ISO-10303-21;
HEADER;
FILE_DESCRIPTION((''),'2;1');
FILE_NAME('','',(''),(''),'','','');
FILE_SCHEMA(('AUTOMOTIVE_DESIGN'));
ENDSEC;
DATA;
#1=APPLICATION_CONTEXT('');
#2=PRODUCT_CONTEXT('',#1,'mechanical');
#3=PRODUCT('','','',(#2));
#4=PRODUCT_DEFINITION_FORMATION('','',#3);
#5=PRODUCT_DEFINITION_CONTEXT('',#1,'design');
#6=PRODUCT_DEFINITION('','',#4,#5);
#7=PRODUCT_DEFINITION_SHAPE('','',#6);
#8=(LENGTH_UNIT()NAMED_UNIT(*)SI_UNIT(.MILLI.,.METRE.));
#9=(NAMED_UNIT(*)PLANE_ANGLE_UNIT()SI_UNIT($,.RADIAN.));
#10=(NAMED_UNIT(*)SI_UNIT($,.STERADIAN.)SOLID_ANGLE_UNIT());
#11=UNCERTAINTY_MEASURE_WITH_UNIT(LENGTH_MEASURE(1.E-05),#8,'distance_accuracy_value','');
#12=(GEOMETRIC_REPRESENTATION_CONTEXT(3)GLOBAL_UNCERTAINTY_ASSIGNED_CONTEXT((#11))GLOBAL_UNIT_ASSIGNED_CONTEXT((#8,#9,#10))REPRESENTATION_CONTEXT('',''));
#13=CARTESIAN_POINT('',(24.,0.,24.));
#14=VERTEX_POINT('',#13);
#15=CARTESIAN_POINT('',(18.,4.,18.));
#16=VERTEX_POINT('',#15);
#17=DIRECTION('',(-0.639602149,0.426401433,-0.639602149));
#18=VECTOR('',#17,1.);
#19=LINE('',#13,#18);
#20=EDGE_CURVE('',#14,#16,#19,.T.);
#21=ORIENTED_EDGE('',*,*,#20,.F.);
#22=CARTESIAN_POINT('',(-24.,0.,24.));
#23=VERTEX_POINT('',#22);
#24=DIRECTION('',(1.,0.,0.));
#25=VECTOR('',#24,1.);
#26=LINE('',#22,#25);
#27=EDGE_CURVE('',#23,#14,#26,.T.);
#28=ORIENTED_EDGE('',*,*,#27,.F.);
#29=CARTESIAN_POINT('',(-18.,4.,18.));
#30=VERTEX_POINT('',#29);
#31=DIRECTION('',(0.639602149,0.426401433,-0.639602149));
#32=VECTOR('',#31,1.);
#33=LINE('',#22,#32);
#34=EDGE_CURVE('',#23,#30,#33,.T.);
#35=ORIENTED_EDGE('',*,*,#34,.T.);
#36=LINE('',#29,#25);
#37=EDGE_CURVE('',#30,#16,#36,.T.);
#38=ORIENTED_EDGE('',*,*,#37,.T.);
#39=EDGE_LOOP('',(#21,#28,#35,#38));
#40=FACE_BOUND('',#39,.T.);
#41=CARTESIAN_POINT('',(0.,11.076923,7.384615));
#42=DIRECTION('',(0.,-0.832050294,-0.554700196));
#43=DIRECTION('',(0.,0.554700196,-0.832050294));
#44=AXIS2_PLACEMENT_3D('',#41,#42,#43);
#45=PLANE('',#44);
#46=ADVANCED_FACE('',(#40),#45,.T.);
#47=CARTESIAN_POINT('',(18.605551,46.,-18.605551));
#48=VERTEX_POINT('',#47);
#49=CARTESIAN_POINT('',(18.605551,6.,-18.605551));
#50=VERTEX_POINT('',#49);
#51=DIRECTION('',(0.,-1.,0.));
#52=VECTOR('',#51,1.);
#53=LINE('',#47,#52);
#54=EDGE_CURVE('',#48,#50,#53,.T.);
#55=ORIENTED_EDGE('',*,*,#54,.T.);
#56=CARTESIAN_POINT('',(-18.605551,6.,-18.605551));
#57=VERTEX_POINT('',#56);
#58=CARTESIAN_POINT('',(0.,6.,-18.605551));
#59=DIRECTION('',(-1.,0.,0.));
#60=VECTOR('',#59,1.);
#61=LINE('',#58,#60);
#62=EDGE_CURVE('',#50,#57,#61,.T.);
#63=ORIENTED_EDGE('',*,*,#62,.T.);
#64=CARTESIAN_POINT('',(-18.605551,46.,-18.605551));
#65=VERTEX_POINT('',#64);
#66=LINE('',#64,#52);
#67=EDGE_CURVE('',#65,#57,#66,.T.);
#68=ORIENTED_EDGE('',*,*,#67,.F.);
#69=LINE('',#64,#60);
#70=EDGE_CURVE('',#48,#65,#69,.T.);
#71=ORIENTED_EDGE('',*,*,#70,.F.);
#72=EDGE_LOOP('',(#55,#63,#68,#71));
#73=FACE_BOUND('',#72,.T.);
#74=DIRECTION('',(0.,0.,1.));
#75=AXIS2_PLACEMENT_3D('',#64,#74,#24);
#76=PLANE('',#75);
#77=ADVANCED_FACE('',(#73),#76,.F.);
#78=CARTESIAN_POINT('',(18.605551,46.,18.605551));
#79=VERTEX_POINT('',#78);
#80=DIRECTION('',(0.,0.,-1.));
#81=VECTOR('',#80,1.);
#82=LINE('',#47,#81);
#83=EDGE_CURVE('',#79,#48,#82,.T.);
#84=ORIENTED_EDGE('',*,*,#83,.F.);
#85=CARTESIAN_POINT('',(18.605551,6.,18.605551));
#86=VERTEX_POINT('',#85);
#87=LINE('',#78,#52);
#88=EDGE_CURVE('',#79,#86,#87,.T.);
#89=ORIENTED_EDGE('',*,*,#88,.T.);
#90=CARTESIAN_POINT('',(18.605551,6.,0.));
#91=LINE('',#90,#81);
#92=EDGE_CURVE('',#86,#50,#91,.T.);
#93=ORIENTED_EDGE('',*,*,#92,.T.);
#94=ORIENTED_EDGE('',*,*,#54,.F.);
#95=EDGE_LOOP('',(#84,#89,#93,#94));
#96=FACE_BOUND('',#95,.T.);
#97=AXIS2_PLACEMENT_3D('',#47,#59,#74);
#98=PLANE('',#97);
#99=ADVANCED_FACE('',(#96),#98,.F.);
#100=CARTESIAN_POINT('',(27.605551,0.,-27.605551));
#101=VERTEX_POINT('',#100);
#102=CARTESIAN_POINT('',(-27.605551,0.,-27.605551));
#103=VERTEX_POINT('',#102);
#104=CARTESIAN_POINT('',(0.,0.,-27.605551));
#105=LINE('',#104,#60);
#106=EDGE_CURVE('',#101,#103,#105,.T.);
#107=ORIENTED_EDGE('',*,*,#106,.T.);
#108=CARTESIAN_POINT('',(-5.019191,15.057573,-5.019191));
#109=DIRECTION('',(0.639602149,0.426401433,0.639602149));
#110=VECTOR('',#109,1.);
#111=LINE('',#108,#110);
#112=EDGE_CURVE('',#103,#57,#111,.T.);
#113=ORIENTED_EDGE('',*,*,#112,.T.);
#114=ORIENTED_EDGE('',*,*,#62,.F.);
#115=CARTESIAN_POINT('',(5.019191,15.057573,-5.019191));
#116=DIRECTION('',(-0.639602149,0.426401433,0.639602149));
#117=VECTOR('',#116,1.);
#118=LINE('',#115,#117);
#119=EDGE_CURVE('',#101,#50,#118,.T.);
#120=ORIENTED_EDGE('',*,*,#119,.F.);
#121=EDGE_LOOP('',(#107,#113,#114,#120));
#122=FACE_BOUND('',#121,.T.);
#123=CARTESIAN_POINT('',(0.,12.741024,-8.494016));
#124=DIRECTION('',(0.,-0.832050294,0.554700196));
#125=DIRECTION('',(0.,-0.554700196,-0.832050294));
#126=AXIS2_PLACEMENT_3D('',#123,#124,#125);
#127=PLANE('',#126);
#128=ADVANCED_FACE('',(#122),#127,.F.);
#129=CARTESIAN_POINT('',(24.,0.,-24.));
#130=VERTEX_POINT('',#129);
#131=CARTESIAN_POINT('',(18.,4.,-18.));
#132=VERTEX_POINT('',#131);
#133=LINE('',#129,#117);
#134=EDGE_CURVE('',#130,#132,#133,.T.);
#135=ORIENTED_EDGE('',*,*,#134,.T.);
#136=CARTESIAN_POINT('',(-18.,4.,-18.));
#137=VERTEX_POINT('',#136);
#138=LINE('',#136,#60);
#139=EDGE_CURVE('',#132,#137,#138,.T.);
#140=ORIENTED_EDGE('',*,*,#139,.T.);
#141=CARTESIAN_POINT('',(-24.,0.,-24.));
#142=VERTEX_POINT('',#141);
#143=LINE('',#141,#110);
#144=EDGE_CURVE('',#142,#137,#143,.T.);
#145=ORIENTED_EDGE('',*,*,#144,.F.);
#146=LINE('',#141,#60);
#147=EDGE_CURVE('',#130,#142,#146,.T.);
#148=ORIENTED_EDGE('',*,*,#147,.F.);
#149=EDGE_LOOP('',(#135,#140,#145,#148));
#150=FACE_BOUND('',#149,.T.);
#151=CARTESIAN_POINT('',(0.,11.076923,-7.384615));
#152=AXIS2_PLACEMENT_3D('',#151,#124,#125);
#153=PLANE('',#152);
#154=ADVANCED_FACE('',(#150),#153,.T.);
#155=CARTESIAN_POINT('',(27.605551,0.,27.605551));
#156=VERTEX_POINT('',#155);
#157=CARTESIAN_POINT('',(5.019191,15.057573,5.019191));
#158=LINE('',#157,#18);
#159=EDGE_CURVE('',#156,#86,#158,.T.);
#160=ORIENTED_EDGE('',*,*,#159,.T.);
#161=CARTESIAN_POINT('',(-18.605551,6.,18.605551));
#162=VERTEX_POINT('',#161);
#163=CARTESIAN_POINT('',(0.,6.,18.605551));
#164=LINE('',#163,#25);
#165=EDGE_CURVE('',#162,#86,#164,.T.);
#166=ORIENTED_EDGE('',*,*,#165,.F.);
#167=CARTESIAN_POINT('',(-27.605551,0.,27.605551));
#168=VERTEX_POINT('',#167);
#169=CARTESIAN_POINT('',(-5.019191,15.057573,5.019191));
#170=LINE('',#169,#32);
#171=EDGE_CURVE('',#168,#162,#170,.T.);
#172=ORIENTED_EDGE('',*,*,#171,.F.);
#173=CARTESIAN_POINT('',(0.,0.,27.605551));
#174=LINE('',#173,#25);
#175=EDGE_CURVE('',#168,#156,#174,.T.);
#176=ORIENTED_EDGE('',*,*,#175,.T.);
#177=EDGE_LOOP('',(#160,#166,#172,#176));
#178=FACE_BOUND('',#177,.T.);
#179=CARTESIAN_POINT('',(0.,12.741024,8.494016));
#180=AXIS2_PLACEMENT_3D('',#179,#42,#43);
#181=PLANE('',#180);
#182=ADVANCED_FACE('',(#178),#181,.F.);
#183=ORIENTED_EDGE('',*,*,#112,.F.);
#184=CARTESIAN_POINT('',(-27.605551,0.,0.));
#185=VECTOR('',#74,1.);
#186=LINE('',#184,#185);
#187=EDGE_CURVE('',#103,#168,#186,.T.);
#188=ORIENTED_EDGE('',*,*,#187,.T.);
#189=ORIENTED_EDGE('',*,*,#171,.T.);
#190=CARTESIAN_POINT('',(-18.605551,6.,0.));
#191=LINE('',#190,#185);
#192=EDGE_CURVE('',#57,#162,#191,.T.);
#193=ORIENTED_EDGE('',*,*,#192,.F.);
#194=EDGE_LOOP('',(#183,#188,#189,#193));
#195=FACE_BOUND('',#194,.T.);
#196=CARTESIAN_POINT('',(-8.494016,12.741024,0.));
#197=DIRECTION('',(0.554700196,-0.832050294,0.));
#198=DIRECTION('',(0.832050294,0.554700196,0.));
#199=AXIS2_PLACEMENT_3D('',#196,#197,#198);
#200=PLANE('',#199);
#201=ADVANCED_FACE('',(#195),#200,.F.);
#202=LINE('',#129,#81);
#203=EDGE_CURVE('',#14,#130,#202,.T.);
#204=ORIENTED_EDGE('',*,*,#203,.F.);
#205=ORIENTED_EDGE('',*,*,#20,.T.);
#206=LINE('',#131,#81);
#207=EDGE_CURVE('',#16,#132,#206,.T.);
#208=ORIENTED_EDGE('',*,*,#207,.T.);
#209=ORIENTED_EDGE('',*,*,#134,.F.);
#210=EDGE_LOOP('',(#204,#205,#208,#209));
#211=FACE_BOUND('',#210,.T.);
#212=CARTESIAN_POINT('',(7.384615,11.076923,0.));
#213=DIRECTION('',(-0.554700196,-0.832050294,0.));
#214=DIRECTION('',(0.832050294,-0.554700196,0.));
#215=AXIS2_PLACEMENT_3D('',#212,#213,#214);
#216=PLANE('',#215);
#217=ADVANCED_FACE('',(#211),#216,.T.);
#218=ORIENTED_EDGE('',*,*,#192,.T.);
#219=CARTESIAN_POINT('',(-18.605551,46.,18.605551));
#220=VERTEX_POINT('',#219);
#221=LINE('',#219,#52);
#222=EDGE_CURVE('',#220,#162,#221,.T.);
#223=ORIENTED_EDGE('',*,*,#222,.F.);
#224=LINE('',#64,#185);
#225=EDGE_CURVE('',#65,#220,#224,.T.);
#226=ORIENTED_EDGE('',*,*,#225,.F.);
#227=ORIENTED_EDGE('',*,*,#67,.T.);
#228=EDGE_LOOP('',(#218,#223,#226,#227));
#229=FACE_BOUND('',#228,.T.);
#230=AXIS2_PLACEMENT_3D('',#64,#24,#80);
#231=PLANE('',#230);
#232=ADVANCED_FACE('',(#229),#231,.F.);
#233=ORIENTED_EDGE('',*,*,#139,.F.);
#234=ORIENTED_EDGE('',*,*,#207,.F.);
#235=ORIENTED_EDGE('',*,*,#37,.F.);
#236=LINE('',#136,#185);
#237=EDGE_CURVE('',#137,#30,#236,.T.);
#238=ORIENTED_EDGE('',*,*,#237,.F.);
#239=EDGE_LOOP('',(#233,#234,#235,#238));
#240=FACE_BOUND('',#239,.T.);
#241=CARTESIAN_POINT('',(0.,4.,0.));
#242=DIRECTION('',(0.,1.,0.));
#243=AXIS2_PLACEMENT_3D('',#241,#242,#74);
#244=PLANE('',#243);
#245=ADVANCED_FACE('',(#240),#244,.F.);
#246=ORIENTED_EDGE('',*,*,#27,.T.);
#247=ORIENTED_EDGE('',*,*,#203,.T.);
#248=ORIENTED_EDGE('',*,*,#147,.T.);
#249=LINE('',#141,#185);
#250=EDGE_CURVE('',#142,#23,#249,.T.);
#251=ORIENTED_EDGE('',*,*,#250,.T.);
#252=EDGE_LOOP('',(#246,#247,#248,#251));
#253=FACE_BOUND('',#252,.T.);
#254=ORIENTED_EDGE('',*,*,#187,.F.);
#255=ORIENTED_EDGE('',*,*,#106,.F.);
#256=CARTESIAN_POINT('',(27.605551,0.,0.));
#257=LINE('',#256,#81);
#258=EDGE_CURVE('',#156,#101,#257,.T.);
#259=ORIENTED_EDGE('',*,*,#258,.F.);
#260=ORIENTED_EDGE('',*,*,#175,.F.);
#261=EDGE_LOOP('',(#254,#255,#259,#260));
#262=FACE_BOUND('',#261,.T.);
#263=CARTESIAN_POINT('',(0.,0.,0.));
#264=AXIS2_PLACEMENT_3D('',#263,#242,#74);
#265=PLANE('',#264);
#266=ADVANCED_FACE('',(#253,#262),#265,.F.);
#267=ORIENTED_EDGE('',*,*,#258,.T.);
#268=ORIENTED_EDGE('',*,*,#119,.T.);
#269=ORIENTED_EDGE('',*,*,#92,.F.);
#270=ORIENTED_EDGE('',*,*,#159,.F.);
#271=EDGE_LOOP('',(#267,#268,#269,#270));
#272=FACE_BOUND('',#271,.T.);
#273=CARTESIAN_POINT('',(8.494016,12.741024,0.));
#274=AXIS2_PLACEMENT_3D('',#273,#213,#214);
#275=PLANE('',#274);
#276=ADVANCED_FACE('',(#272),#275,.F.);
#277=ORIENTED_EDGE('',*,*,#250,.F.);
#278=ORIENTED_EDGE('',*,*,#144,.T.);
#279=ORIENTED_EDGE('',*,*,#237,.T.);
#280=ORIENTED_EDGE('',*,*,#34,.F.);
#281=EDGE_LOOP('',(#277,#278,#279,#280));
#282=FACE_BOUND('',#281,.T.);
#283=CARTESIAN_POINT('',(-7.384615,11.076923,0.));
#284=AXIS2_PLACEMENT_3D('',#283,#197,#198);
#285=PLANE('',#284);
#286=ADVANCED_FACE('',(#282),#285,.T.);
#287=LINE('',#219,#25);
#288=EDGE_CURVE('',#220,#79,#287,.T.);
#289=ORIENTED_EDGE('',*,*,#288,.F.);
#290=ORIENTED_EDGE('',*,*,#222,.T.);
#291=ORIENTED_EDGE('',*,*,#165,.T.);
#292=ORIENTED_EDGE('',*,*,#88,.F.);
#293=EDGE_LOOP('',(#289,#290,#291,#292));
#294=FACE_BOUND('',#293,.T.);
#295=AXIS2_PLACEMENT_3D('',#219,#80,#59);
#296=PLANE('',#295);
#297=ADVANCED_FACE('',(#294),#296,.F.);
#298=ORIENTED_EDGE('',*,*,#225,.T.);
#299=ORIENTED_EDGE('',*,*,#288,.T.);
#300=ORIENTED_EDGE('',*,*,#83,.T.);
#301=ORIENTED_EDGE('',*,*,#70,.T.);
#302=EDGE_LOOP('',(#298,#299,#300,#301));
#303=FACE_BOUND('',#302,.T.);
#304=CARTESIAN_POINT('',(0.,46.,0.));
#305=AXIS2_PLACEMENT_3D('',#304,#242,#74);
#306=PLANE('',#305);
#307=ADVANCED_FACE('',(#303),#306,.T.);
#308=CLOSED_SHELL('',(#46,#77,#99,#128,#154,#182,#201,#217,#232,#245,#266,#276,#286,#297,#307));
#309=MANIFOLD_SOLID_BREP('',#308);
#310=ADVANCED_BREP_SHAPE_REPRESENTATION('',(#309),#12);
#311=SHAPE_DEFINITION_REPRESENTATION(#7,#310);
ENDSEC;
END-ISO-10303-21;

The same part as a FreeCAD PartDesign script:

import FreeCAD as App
import Part
import Sketcher

V = App.Vector
Q = App.Units.Quantity


def faces_at(feature, points):
    """Names of the faces that lie closest to the given points."""
    faces = feature.Shape.Faces
    near = lambda p: min(range(len(faces)), key=lambda i: faces[i].distToShape(Part.Vertex(*p))[0])
    return sorted({f"Face{near(p) + 1}" for p in points})


def add_polygon(sketch, points):
    """Adds a closed chain of lines whose ends are joined by coincident constraints."""
    first, n = sketch.GeometryCount, len(points)
    for a, b in zip(points, points[1:] + points[:1]):
        sketch.addGeometry(Part.LineSegment(App.Vector(*a, 0), App.Vector(*b, 0)), False)
    for i in range(n):
        sketch.addConstraint(Sketcher.Constraint("Coincident", first + i, 2, first + (i + 1) % n, 1))

doc = App.newDocument("Part")
params = doc.addObject("Spreadsheet::Sheet", "Params")
for row, (alias, value) in enumerate([
    ("sketch1_width", "48 mm"),
    ("sketch2_width", "36 mm"),
    ("thickness_wall", "2 mm"),
    ("pad1_length", "40 mm"),
], start=1):
    params.set(f"A{row}", alias)
    params.set(f"B{row}", "=" + value)
    params.setAlias(f"B{row}", alias)

body = doc.addObject("PartDesign::Body", "Body")

# Sketch on XZ plane
sketch1 = doc.addObject("Sketcher::SketchObject", "Sketch")
body.addObject(sketch1)
sketch1.AttachmentSupport = (doc.XZ_Plane, [""])
sketch1.MapMode = "FlatFace"
add_polygon(sketch1, [(24, -24), (-24, -24), (-24, 24), (24, 24)])  # lines 0-3
sketch1.addConstraint(Sketcher.Constraint("Horizontal", 0))
sketch1.addConstraint(Sketcher.Constraint("Vertical", 1))
sketch1.addConstraint(Sketcher.Constraint("Horizontal", 2))
sketch1.addConstraint(Sketcher.Constraint("Vertical", 3))
sketch1.addConstraint(Sketcher.Constraint("Symmetric", 0, 2, 2, 2, -1, 1))
sketch1.addConstraint(Sketcher.Constraint("Equal", 2, 1))
sketch1.addConstraint(Sketcher.Constraint("DistanceX", 0, 2, 0, 1, Q("48 mm")))
sketch1.setExpression("Constraints[10]", "Params.sketch1_width")

# Sketch on XZ plane
sketch2 = doc.addObject("Sketcher::SketchObject", "Sketch001")
body.addObject(sketch2)
sketch2.AttachmentSupport = (doc.XZ_Plane, [""])
sketch2.MapMode = "FlatFace"
sketch2.AttachmentOffset = App.Placement(V(0, 0, -4), App.Rotation())
add_polygon(sketch2, [(18, -18), (-18, -18), (-18, 18), (18, 18)])  # lines 0-3
sketch2.addConstraint(Sketcher.Constraint("Horizontal", 0))
sketch2.addConstraint(Sketcher.Constraint("Vertical", 1))
sketch2.addConstraint(Sketcher.Constraint("Horizontal", 2))
sketch2.addConstraint(Sketcher.Constraint("Vertical", 3))
sketch2.addConstraint(Sketcher.Constraint("Symmetric", 0, 2, 2, 2, -1, 1))
sketch2.addConstraint(Sketcher.Constraint("Equal", 2, 1))
sketch2.addConstraint(Sketcher.Constraint("DistanceX", 0, 2, 0, 1, Q("36 mm")))
sketch2.setExpression("Constraints[10]", "Params.sketch2_width")

additiveloft = doc.addObject("PartDesign::AdditiveLoft", "AdditiveLoft")
body.addObject(additiveloft)
additiveloft.Profile = sketch1
additiveloft.Sections = [sketch2]
doc.recompute()

thickness = doc.addObject("PartDesign::Thickness", "Thickness")
body.addObject(thickness)
thickness.Base = (additiveloft, faces_at(additiveloft, [(0, 0, 0)]))
thickness.setExpression("Value", "Params.thickness_wall")
thickness.Reversed = False
thickness.Join = "Intersection"

# Sketch on XZ plane
sketch3 = doc.addObject("Sketcher::SketchObject", "Sketch002")
body.addObject(sketch3)
sketch3.AttachmentSupport = (doc.XZ_Plane, [""])
sketch3.MapMode = "FlatFace"
sketch3.AttachmentOffset = App.Placement(V(0, 0, -6), App.Rotation())
add_polygon(sketch3, [(-19, -19), (-19, 19), (19, 19), (19, -19)])  # lines 0-3
sketch3.addConstraint(Sketcher.Constraint("Vertical", 0))
sketch3.addConstraint(Sketcher.Constraint("Horizontal", 1))
sketch3.addConstraint(Sketcher.Constraint("Vertical", 2))
sketch3.addConstraint(Sketcher.Constraint("Horizontal", 3))
sketch3.addConstraint(Sketcher.Constraint("Symmetric", 0, 2, 2, 2, -1, 1))
sketch3.addConstraint(Sketcher.Constraint("Equal", 3, 0))
sketch3.addConstraint(Sketcher.Constraint("DistanceX", 1, 1, 1, 2, Q("37.211103 mm")))
pad1 = doc.addObject("PartDesign::Pad", "Pad")
body.addObject(pad1)
pad1.Profile = sketch3
pad1.setExpression("Length", "Params.pad1_length")
pad1.Reversed = True

doc.recompute()
